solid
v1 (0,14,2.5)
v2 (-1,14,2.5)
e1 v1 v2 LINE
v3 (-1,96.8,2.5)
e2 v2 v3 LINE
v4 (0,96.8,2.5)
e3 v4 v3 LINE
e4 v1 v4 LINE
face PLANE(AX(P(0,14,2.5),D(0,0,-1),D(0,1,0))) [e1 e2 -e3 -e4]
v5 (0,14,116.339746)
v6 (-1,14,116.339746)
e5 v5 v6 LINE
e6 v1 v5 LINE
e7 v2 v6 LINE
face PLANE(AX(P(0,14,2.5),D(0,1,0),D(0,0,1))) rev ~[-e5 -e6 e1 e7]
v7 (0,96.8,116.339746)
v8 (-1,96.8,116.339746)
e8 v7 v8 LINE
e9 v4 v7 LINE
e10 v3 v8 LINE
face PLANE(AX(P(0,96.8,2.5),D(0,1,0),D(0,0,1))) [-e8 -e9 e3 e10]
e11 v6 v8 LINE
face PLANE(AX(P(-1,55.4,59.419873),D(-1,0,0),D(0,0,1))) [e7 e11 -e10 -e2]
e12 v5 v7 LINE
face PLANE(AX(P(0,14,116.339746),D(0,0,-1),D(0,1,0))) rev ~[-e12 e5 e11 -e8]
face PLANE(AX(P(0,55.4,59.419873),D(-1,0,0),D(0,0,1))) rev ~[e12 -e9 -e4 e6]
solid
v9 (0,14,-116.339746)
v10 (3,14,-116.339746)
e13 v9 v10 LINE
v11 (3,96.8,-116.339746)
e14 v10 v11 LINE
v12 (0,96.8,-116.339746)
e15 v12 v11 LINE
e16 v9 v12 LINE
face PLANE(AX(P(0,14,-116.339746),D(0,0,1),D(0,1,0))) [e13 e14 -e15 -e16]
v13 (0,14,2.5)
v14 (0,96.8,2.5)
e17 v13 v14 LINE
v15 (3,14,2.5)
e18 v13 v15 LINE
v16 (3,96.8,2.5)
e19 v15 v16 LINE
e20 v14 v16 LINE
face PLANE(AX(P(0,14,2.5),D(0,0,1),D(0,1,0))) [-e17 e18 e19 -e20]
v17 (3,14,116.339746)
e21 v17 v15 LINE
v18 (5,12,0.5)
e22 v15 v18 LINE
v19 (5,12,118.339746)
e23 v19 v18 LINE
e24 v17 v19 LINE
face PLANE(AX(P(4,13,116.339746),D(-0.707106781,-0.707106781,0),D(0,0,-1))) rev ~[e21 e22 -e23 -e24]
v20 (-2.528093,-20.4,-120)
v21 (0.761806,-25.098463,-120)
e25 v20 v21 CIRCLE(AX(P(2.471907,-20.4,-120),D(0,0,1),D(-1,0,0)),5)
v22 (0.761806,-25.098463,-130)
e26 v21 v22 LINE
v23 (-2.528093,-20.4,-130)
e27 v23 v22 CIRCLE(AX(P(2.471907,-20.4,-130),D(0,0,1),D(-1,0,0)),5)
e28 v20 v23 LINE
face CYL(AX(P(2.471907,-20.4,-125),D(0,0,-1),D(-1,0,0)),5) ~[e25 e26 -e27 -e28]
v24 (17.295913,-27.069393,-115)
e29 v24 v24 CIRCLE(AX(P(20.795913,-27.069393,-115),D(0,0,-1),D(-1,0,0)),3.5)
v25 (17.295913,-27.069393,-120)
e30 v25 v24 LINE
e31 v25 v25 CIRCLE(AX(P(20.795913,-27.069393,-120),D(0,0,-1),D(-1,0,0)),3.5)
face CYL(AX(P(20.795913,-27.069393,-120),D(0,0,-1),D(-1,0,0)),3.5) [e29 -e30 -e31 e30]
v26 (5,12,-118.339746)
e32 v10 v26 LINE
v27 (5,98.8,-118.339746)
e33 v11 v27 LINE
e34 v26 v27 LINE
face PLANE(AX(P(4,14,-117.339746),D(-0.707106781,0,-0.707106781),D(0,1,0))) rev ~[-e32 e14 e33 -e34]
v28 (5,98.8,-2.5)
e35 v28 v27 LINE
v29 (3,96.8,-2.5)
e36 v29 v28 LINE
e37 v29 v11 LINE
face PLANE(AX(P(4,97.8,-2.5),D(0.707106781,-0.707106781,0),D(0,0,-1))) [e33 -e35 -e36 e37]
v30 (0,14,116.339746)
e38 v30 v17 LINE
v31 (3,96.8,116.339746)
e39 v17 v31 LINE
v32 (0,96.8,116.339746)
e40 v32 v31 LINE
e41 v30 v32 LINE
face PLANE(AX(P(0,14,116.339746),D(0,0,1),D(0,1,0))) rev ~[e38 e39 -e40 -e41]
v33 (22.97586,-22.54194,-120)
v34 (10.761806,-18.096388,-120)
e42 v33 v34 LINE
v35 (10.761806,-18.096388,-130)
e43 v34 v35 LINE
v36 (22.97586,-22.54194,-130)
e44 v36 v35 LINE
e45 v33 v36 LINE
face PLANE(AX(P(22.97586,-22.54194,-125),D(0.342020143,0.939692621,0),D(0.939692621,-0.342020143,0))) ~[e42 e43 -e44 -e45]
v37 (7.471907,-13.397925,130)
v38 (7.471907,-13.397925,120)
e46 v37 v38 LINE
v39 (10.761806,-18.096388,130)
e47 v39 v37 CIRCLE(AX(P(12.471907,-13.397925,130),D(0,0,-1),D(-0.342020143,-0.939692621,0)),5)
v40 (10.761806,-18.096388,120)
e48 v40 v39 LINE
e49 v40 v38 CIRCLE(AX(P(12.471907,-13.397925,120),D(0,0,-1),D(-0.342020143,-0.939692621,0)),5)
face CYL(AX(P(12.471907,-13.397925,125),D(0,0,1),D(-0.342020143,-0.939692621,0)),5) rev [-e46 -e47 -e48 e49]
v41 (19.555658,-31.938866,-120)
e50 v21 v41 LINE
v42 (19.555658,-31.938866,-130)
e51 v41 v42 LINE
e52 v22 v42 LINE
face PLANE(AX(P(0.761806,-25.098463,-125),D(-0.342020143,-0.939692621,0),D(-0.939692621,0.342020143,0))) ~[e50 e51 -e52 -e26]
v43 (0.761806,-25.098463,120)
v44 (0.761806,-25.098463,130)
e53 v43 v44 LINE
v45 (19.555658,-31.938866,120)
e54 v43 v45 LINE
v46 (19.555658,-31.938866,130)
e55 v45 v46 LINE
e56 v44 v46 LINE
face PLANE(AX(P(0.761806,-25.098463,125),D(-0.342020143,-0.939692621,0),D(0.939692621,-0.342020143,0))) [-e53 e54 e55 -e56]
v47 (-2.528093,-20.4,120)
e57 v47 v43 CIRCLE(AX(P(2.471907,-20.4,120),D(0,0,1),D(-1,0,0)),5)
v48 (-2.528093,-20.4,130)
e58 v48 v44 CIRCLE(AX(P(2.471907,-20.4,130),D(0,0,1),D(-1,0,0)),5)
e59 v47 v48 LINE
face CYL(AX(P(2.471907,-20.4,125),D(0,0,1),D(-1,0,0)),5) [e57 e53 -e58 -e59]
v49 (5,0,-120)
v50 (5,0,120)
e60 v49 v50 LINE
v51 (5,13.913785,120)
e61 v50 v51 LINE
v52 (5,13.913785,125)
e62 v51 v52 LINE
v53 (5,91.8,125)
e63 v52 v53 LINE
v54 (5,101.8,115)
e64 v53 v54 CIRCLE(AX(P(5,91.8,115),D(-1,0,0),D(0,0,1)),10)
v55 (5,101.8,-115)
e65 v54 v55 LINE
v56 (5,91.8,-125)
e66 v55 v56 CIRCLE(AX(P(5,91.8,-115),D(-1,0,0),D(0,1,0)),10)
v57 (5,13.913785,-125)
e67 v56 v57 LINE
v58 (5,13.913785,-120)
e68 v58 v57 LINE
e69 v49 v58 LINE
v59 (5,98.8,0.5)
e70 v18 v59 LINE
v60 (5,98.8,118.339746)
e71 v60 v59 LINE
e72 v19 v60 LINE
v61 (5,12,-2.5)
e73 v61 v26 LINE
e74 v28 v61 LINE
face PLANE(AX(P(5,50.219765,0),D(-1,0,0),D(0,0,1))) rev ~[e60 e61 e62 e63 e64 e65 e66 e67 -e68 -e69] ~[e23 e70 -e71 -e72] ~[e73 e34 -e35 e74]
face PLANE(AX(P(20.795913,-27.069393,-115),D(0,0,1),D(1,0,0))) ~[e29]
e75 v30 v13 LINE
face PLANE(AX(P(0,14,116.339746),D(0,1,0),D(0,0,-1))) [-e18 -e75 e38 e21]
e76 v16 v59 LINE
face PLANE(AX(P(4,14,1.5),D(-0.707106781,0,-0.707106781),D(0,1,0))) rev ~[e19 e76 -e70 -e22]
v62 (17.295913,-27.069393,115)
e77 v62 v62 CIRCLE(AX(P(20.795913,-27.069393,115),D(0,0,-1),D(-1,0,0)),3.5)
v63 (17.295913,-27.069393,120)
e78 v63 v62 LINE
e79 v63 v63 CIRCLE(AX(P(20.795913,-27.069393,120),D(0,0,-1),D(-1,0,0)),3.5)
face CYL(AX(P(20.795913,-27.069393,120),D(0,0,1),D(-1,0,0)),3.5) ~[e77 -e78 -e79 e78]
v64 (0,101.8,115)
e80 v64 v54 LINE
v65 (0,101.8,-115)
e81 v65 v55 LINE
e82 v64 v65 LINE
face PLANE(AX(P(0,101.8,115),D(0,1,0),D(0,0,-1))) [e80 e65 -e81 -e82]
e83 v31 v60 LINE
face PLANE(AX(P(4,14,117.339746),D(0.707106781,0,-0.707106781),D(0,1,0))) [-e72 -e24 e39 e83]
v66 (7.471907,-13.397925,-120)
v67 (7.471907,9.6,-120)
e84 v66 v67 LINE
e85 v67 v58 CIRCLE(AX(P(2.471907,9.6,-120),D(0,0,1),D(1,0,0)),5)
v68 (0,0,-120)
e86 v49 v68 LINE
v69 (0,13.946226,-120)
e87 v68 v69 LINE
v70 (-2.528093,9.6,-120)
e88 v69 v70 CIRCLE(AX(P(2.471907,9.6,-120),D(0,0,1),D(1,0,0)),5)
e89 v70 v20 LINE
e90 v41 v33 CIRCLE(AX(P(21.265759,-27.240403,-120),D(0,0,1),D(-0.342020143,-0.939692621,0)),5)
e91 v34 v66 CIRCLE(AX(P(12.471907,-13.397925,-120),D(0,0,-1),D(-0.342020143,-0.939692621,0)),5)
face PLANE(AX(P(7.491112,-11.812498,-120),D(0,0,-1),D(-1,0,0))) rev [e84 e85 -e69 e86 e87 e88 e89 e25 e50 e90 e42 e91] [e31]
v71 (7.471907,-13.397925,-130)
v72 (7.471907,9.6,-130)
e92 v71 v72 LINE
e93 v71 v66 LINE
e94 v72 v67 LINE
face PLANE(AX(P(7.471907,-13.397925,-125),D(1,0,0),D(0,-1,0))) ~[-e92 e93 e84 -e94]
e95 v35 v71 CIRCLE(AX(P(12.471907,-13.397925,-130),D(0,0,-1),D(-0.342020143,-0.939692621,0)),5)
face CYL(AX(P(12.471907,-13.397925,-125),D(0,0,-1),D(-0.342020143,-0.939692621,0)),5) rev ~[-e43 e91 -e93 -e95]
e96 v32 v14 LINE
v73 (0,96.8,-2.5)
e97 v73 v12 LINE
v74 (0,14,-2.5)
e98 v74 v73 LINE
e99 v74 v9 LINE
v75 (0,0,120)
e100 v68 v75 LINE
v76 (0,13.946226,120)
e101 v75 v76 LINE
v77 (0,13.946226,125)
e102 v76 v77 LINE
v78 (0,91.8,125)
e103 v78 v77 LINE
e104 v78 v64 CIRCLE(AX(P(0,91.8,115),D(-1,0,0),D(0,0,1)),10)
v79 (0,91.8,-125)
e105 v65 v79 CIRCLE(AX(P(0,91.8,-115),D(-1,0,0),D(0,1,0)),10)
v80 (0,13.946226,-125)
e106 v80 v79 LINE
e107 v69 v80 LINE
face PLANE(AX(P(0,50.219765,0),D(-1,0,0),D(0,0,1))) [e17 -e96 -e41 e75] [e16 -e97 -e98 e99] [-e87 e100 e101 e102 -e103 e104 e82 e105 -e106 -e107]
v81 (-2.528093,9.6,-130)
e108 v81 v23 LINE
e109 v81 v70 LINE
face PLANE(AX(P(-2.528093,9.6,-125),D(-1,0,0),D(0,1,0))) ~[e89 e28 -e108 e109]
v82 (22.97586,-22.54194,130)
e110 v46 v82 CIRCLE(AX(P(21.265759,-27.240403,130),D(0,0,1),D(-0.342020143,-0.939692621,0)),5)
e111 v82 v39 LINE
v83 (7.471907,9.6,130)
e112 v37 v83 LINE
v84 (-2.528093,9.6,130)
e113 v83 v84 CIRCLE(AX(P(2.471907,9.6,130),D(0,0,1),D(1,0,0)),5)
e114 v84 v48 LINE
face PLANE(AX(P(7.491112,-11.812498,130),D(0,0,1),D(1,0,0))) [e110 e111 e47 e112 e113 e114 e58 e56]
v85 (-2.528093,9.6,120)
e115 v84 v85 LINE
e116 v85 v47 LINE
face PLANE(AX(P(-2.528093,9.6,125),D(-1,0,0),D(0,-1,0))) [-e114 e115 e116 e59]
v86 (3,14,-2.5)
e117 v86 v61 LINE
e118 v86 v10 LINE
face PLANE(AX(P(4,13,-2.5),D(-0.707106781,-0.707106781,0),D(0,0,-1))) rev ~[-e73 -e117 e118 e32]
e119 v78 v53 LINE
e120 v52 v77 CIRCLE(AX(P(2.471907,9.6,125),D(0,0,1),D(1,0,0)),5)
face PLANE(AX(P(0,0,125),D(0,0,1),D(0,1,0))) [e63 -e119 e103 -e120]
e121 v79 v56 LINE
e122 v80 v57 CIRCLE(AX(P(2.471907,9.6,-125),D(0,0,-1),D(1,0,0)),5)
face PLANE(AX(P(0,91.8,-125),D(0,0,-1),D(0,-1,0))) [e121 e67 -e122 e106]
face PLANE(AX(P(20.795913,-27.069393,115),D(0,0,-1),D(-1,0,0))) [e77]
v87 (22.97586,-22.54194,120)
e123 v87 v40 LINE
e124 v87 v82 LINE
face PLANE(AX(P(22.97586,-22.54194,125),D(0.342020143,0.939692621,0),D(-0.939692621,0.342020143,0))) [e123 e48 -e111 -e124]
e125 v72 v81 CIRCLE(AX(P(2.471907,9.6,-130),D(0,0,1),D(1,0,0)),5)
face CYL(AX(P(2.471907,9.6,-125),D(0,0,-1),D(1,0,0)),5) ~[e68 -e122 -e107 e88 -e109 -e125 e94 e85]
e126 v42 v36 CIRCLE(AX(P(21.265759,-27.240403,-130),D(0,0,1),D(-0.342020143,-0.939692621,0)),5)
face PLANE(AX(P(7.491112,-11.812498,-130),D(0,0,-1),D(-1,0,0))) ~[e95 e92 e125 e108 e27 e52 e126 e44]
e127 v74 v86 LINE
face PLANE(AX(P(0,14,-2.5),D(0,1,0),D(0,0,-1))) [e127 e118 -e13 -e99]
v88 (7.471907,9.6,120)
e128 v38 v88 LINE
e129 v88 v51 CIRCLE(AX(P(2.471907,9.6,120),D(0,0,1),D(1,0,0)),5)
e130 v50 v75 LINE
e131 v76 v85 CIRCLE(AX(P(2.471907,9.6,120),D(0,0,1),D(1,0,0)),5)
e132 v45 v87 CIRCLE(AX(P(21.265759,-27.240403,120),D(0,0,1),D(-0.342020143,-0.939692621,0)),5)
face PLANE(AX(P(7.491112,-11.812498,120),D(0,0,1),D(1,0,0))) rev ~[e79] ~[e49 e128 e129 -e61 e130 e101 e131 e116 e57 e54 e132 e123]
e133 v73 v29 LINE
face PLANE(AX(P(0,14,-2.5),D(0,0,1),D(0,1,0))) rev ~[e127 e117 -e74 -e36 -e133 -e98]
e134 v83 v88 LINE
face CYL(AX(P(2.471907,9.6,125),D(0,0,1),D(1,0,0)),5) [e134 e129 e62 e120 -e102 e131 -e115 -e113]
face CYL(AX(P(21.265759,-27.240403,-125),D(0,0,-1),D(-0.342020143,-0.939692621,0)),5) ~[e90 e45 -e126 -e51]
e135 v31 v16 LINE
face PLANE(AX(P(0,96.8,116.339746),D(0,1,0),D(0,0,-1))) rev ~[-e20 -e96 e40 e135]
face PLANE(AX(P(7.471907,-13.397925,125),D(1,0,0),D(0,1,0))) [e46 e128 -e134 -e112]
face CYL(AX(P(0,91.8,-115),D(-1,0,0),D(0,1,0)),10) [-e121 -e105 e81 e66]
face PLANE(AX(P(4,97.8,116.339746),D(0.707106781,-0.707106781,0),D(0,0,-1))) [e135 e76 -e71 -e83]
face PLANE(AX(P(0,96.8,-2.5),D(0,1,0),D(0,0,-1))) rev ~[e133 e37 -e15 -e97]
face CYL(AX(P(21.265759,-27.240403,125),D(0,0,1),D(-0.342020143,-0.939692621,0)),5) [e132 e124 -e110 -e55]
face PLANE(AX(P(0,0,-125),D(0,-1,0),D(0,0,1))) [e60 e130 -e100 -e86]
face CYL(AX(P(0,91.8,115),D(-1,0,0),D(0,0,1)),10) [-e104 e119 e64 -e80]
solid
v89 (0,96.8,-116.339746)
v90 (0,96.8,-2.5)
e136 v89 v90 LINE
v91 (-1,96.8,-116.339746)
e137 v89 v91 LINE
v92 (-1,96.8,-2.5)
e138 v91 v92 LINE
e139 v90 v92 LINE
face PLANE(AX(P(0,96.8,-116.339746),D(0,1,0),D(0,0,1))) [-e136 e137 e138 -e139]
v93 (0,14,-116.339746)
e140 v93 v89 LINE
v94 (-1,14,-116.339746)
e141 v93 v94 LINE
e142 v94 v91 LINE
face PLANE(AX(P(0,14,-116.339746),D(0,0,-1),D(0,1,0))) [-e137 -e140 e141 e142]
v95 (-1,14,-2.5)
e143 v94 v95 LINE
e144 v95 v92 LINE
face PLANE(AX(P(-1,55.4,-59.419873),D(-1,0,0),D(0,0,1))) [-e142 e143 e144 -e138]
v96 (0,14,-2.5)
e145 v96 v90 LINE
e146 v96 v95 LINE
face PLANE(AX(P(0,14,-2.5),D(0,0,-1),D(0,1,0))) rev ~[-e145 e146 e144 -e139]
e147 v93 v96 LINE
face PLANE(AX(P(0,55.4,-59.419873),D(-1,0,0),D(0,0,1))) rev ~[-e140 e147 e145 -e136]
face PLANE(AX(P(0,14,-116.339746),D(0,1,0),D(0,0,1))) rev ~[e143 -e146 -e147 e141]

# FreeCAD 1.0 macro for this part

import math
import FreeCAD as App
import Part
import Sketcher

V = App.Vector
Q = App.Units.Quantity


def edges_at(feature, points):
    """Names of the edges that pass closest to the given points."""
    edges = feature.Shape.Edges
    near = lambda p: min(range(len(edges)), key=lambda i: edges[i].distToShape(Part.Vertex(*p))[0])
    return sorted({f"Edge{near(p) + 1}" for p in points})


def add_polygon(sketch, points):
    """Adds a closed chain of lines whose ends are joined by coincident constraints."""
    first, n = sketch.GeometryCount, len(points)
    for a, b in zip(points, points[1:] + points[:1]):
        sketch.addGeometry(Part.LineSegment(App.Vector(*a, 0), App.Vector(*b, 0)), False)
    for i in range(n):
        sketch.addConstraint(Sketcher.Constraint("Coincident", first + i, 2, first + (i + 1) % n, 1))

doc = App.newDocument("Part")
body = doc.addObject("PartDesign::Body", "Body")

sketch1 = body.newObject("Sketcher::SketchObject", "Sketch")
sketch1.AttachmentSupport = (doc.getObject("YZ_Plane"), [""])
sketch1.MapMode = "FlatFace"
sketch1.addGeometry(Part.LineSegment(V(101.8, -115, 0), V(101.8, 115, 0)), False)
sketch1.addGeometry(Part.ArcOfCircle(Part.Circle(V(91.8, 115, 0), V(0, 0, 1), 10), math.radians(0), math.radians(90)), False)
sketch1.addGeometry(Part.LineSegment(V(91.8, 125, 0), V(0, 125, 0)), False)
sketch1.addGeometry(Part.LineSegment(V(0, 125, 0), V(0, -125, 0)), False)
sketch1.addGeometry(Part.LineSegment(V(0, -125, 0), V(91.8, -125, 0)), False)
sketch1.addGeometry(Part.ArcOfCircle(Part.Circle(V(91.8, -115, 0), V(0, 0, 1), 10), math.radians(-90), math.radians(0)), False)
add_polygon(sketch1, [(14, -2.5), (96.8, -2.5), (96.8, -116.339746), (14, -116.339746)])
add_polygon(sketch1, [(14, 116.339746), (96.8, 116.339746), (96.8, 2.5), (14, 2.5)])
sketch1.addConstraint([
    Sketcher.Constraint("Tangent", 0, 2, 1, 1),
    Sketcher.Constraint("Tangent", 1, 2, 2, 1),
    Sketcher.Constraint("Coincident", 2, 2, 3, 1),
    Sketcher.Constraint("Coincident", 3, 2, 4, 1),
    Sketcher.Constraint("Tangent", 4, 2, 5, 1),
    Sketcher.Constraint("Tangent", 5, 2, 0, 1),
    Sketcher.Constraint("Vertical", 0),
    Sketcher.Constraint("Horizontal", 2),
    Sketcher.Constraint("Vertical", 3),
    Sketcher.Constraint("Horizontal", 4),
    Sketcher.Constraint("Horizontal", 6),
    Sketcher.Constraint("Vertical", 7),
    Sketcher.Constraint("Horizontal", 8),
    Sketcher.Constraint("Vertical", 9),
    Sketcher.Constraint("Horizontal", 10),
    Sketcher.Constraint("Vertical", 11),
    Sketcher.Constraint("Horizontal", 12),
    Sketcher.Constraint("Vertical", 13),
    Sketcher.Constraint("Equal", 1, 5),
    Sketcher.Constraint("Symmetric", 2, 2, 3, 2, -1, 1),
    Sketcher.Constraint("Symmetric", 7, 2, 10, 2, -1),
    Sketcher.Constraint("Symmetric", 9, 2, 12, 2, -1),
    Sketcher.Constraint("Radius", 1, 10.0),
    Sketcher.Constraint("DistanceY", 0, 1, 0, 2, 230.0),
    Sketcher.Constraint("DistanceX", 2, 2, 2, 1, 91.8),
    Sketcher.Constraint("DistanceX", 6, 1, 6, 2, 82.8),
    Sketcher.Constraint("DistanceX", -1, 1, 8, 2, 14.0),
    Sketcher.Constraint("DistanceY", 6, 2, 11, 2, 5.0),
    Sketcher.Constraint("DistanceY", 7, 2, 7, 1, 113.839746),
])
pad1 = body.newObject("PartDesign::Pad", "Pad")
pad1.Profile = sketch1
pad1.Length = 5
doc.recompute()

chamfer = body.newObject("PartDesign::Chamfer", "Chamfer")
chamfer.Base = (pad1, edges_at(pad1, [
    (5, 55.4, 116.34),
    (5, 14, 59.42),
    (5, 55.4, 2.5),
    (5, 96.8, 59.42),
    (5, 55.4, -116.34),
    (5, 96.8, -59.42),
    (5, 14, -59.42),
]))
chamfer.Size = 2

sketch2 = body.newObject("Sketcher::SketchObject", "Sketch001")
sketch2.AttachmentSupport = (doc.getObject("XY_Plane"), [""])
sketch2.MapMode = "FlatFace"
sketch2.AttachmentOffset = App.Placement(V(0, 0, 125), App.Rotation())
add_polygon(sketch2, [(0, 0), (5, 0), (0, 0.881635)])
sketch2.addConstraint([
    Sketcher.Constraint("Horizontal", 0),
    Sketcher.Constraint("Vertical", 2),
    Sketcher.Constraint("Coincident", 2, 2, -1, 1),
    Sketcher.Constraint("DistanceX", 0, 1, 0, 2, 5.0),
    Sketcher.Constraint("Angle", 1, Q("170 deg")),
])
pad2 = body.newObject("PartDesign::Pad", "Pad001")
pad2.Profile = sketch2
pad2.Type = "UpToLast"
pad2.Reversed = True

sketch3 = body.newObject("Sketcher::SketchObject", "Sketch002")
sketch3.AttachmentSupport = (doc.getObject("XY_Plane"), [""])
sketch3.MapMode = "FlatFace"
sketch3.AttachmentOffset = App.Placement(V(0, 0, 125), App.Rotation())
sketch3.addGeometry([
    Part.LineSegment(V(-2.528093, 9.6, 0), V(-2.528093, -20.4, 0)),
    Part.ArcOfCircle(Part.Circle(V(2.471907, -20.4, 0), V(0, 0, 1), 5), math.radians(180), math.radians(250)),
    Part.LineSegment(V(0.761806, -25.098463, 0), V(19.555658, -31.938866, 0)),
    Part.ArcOfCircle(Part.Circle(V(21.265759, -27.240403, 0), V(0, 0, 1), 5), math.radians(-110), math.radians(70)),
    Part.LineSegment(V(22.97586, -22.54194, 0), V(10.761806, -18.096388, 0)),
    Part.ArcOfCircle(Part.Circle(V(12.471907, -13.397925, 0), V(0, 0, 1), 5), math.radians(180), math.radians(250)),
    Part.LineSegment(V(7.471907, -13.397925, 0), V(7.471907, 9.6, 0)),
    Part.ArcOfCircle(Part.Circle(V(2.471907, 9.6, 0), V(0, 0, 1), 5), math.radians(0), math.radians(180)),
], False)
sketch3.addConstraint([
    Sketcher.Constraint("Tangent", 0, 2, 1, 1),
    Sketcher.Constraint("Tangent", 1, 2, 2, 1),
    Sketcher.Constraint("Tangent", 2, 2, 3, 1),
    Sketcher.Constraint("Tangent", 3, 2, 4, 1),
    Sketcher.Constraint("Tangent", 4, 2, 5, 2),
    Sketcher.Constraint("Tangent", 5, 1, 6, 1),
    Sketcher.Constraint("Tangent", 6, 2, 7, 1),
    Sketcher.Constraint("Tangent", 7, 2, 0, 1),
    Sketcher.Constraint("Vertical", 0),
    Sketcher.Constraint("Vertical", 6),
    Sketcher.Constraint("Equal", 1, 3),
    Sketcher.Constraint("Equal", 3, 5),
    Sketcher.Constraint("Equal", 5, 7),
    Sketcher.Constraint("Parallel", 2, 4),
    Sketcher.Constraint("Radius", 1, 5.0),
    Sketcher.Constraint("DistanceY", 0, 2, 0, 1, 30.0),
    Sketcher.Constraint("Angle", 2, Q("-20 deg")),
    Sketcher.Constraint("Distance", 2, 20.0),
    Sketcher.Constraint("DistanceY", 1, 3, -1, 1, 20.4),
    Sketcher.Constraint("DistanceX", -1, 1, 3, 3, 21.265759),
])
pad3 = body.newObject("PartDesign::Pad", "Pad002")
pad3.Profile = sketch3
pad3.Length = 10
pad3.Midplane = True

sketch4 = body.newObject("Sketcher::SketchObject", "Sketch003")
sketch4.AttachmentSupport = (doc.getObject("XY_Plane"), [""])
sketch4.MapMode = "FlatFace"
sketch4.AttachmentOffset = App.Placement(V(0, 0, 120), App.Rotation())
sketch4.addGeometry(Part.Circle(V(20.795913, -27.069393, 0), V(0, 0, 1), 3.5), False)
sketch4.addConstraint([
    Sketcher.Constraint("Diameter", 0, 7.0),
    Sketcher.Constraint("DistanceX", -1, 1, 0, 3, 20.795913),
    Sketcher.Constraint("DistanceY", 0, 3, -1, 1, 27.069393),
])
pad4 = body.newObject("PartDesign::Pad", "Pad003")
pad4.Profile = sketch4
pad4.Length = 5
pad4.Reversed = True
doc.recompute()

mirrored = body.newObject("PartDesign::Mirrored", "Mirrored")
mirrored.Originals = [pad3, pad4]
mirrored.MirrorPlane = (doc.getObject("XY_Plane"), [""])
body.Tip = mirrored
body2 = doc.addObject("PartDesign::Body", "Body001")

sketch5 = body2.newObject("Sketcher::SketchObject", "Sketch004")
sketch5.AttachmentSupport = (doc.getObject("YZ_Plane001"), [""])
sketch5.MapMode = "FlatFace"
add_polygon(sketch5, [(96.8, 2.5), (14, 2.5), (14, 116.339746), (96.8, 116.339746)])
sketch5.addConstraint([
    Sketcher.Constraint("Horizontal", 0),
    Sketcher.Constraint("Vertical", 1),
    Sketcher.Constraint("Horizontal", 2),
    Sketcher.Constraint("Vertical", 3),
    Sketcher.Constraint("DistanceX", 0, 2, 0, 1, 82.8),
    Sketcher.Constraint("DistanceX", -1, 1, 0, 2, 14.0),
    Sketcher.Constraint("DistanceY", -1, 1, 0, 2, 2.5),
    Sketcher.Constraint("DistanceY", 1, 1, 1, 2, 113.839746),
])
pad5 = body2.newObject("PartDesign::Pad", "Pad004")
pad5.Profile = sketch5
pad5.Length = 1
pad5.Reversed = True
body3 = doc.addObject("PartDesign::Body", "Body002")

sketch6 = body3.newObject("Sketcher::SketchObject", "Sketch005")
sketch6.AttachmentSupport = (doc.getObject("YZ_Plane002"), [""])
sketch6.MapMode = "FlatFace"
add_polygon(sketch6, [(96.8, -116.339746), (14, -116.339746), (14, -2.5), (96.8, -2.5)])
sketch6.addConstraint([
    Sketcher.Constraint("Horizontal", 0),
    Sketcher.Constraint("Vertical", 1),
    Sketcher.Constraint("Horizontal", 2),
    Sketcher.Constraint("Vertical", 3),
    Sketcher.Constraint("DistanceX", 0, 2, 0, 1, 82.8),
    Sketcher.Constraint("DistanceX", -1, 1, 0, 2, 14.0),
    Sketcher.Constraint("DistanceY", 1, 2, -1, 1, 2.5),
    Sketcher.Constraint("DistanceY", 1, 1, 1, 2, 113.839746),
])
pad6 = body3.newObject("PartDesign::Pad", "Pad005")
pad6.Profile = sketch6
pad6.Length = 1
pad6.Reversed = True

doc.recompute()
